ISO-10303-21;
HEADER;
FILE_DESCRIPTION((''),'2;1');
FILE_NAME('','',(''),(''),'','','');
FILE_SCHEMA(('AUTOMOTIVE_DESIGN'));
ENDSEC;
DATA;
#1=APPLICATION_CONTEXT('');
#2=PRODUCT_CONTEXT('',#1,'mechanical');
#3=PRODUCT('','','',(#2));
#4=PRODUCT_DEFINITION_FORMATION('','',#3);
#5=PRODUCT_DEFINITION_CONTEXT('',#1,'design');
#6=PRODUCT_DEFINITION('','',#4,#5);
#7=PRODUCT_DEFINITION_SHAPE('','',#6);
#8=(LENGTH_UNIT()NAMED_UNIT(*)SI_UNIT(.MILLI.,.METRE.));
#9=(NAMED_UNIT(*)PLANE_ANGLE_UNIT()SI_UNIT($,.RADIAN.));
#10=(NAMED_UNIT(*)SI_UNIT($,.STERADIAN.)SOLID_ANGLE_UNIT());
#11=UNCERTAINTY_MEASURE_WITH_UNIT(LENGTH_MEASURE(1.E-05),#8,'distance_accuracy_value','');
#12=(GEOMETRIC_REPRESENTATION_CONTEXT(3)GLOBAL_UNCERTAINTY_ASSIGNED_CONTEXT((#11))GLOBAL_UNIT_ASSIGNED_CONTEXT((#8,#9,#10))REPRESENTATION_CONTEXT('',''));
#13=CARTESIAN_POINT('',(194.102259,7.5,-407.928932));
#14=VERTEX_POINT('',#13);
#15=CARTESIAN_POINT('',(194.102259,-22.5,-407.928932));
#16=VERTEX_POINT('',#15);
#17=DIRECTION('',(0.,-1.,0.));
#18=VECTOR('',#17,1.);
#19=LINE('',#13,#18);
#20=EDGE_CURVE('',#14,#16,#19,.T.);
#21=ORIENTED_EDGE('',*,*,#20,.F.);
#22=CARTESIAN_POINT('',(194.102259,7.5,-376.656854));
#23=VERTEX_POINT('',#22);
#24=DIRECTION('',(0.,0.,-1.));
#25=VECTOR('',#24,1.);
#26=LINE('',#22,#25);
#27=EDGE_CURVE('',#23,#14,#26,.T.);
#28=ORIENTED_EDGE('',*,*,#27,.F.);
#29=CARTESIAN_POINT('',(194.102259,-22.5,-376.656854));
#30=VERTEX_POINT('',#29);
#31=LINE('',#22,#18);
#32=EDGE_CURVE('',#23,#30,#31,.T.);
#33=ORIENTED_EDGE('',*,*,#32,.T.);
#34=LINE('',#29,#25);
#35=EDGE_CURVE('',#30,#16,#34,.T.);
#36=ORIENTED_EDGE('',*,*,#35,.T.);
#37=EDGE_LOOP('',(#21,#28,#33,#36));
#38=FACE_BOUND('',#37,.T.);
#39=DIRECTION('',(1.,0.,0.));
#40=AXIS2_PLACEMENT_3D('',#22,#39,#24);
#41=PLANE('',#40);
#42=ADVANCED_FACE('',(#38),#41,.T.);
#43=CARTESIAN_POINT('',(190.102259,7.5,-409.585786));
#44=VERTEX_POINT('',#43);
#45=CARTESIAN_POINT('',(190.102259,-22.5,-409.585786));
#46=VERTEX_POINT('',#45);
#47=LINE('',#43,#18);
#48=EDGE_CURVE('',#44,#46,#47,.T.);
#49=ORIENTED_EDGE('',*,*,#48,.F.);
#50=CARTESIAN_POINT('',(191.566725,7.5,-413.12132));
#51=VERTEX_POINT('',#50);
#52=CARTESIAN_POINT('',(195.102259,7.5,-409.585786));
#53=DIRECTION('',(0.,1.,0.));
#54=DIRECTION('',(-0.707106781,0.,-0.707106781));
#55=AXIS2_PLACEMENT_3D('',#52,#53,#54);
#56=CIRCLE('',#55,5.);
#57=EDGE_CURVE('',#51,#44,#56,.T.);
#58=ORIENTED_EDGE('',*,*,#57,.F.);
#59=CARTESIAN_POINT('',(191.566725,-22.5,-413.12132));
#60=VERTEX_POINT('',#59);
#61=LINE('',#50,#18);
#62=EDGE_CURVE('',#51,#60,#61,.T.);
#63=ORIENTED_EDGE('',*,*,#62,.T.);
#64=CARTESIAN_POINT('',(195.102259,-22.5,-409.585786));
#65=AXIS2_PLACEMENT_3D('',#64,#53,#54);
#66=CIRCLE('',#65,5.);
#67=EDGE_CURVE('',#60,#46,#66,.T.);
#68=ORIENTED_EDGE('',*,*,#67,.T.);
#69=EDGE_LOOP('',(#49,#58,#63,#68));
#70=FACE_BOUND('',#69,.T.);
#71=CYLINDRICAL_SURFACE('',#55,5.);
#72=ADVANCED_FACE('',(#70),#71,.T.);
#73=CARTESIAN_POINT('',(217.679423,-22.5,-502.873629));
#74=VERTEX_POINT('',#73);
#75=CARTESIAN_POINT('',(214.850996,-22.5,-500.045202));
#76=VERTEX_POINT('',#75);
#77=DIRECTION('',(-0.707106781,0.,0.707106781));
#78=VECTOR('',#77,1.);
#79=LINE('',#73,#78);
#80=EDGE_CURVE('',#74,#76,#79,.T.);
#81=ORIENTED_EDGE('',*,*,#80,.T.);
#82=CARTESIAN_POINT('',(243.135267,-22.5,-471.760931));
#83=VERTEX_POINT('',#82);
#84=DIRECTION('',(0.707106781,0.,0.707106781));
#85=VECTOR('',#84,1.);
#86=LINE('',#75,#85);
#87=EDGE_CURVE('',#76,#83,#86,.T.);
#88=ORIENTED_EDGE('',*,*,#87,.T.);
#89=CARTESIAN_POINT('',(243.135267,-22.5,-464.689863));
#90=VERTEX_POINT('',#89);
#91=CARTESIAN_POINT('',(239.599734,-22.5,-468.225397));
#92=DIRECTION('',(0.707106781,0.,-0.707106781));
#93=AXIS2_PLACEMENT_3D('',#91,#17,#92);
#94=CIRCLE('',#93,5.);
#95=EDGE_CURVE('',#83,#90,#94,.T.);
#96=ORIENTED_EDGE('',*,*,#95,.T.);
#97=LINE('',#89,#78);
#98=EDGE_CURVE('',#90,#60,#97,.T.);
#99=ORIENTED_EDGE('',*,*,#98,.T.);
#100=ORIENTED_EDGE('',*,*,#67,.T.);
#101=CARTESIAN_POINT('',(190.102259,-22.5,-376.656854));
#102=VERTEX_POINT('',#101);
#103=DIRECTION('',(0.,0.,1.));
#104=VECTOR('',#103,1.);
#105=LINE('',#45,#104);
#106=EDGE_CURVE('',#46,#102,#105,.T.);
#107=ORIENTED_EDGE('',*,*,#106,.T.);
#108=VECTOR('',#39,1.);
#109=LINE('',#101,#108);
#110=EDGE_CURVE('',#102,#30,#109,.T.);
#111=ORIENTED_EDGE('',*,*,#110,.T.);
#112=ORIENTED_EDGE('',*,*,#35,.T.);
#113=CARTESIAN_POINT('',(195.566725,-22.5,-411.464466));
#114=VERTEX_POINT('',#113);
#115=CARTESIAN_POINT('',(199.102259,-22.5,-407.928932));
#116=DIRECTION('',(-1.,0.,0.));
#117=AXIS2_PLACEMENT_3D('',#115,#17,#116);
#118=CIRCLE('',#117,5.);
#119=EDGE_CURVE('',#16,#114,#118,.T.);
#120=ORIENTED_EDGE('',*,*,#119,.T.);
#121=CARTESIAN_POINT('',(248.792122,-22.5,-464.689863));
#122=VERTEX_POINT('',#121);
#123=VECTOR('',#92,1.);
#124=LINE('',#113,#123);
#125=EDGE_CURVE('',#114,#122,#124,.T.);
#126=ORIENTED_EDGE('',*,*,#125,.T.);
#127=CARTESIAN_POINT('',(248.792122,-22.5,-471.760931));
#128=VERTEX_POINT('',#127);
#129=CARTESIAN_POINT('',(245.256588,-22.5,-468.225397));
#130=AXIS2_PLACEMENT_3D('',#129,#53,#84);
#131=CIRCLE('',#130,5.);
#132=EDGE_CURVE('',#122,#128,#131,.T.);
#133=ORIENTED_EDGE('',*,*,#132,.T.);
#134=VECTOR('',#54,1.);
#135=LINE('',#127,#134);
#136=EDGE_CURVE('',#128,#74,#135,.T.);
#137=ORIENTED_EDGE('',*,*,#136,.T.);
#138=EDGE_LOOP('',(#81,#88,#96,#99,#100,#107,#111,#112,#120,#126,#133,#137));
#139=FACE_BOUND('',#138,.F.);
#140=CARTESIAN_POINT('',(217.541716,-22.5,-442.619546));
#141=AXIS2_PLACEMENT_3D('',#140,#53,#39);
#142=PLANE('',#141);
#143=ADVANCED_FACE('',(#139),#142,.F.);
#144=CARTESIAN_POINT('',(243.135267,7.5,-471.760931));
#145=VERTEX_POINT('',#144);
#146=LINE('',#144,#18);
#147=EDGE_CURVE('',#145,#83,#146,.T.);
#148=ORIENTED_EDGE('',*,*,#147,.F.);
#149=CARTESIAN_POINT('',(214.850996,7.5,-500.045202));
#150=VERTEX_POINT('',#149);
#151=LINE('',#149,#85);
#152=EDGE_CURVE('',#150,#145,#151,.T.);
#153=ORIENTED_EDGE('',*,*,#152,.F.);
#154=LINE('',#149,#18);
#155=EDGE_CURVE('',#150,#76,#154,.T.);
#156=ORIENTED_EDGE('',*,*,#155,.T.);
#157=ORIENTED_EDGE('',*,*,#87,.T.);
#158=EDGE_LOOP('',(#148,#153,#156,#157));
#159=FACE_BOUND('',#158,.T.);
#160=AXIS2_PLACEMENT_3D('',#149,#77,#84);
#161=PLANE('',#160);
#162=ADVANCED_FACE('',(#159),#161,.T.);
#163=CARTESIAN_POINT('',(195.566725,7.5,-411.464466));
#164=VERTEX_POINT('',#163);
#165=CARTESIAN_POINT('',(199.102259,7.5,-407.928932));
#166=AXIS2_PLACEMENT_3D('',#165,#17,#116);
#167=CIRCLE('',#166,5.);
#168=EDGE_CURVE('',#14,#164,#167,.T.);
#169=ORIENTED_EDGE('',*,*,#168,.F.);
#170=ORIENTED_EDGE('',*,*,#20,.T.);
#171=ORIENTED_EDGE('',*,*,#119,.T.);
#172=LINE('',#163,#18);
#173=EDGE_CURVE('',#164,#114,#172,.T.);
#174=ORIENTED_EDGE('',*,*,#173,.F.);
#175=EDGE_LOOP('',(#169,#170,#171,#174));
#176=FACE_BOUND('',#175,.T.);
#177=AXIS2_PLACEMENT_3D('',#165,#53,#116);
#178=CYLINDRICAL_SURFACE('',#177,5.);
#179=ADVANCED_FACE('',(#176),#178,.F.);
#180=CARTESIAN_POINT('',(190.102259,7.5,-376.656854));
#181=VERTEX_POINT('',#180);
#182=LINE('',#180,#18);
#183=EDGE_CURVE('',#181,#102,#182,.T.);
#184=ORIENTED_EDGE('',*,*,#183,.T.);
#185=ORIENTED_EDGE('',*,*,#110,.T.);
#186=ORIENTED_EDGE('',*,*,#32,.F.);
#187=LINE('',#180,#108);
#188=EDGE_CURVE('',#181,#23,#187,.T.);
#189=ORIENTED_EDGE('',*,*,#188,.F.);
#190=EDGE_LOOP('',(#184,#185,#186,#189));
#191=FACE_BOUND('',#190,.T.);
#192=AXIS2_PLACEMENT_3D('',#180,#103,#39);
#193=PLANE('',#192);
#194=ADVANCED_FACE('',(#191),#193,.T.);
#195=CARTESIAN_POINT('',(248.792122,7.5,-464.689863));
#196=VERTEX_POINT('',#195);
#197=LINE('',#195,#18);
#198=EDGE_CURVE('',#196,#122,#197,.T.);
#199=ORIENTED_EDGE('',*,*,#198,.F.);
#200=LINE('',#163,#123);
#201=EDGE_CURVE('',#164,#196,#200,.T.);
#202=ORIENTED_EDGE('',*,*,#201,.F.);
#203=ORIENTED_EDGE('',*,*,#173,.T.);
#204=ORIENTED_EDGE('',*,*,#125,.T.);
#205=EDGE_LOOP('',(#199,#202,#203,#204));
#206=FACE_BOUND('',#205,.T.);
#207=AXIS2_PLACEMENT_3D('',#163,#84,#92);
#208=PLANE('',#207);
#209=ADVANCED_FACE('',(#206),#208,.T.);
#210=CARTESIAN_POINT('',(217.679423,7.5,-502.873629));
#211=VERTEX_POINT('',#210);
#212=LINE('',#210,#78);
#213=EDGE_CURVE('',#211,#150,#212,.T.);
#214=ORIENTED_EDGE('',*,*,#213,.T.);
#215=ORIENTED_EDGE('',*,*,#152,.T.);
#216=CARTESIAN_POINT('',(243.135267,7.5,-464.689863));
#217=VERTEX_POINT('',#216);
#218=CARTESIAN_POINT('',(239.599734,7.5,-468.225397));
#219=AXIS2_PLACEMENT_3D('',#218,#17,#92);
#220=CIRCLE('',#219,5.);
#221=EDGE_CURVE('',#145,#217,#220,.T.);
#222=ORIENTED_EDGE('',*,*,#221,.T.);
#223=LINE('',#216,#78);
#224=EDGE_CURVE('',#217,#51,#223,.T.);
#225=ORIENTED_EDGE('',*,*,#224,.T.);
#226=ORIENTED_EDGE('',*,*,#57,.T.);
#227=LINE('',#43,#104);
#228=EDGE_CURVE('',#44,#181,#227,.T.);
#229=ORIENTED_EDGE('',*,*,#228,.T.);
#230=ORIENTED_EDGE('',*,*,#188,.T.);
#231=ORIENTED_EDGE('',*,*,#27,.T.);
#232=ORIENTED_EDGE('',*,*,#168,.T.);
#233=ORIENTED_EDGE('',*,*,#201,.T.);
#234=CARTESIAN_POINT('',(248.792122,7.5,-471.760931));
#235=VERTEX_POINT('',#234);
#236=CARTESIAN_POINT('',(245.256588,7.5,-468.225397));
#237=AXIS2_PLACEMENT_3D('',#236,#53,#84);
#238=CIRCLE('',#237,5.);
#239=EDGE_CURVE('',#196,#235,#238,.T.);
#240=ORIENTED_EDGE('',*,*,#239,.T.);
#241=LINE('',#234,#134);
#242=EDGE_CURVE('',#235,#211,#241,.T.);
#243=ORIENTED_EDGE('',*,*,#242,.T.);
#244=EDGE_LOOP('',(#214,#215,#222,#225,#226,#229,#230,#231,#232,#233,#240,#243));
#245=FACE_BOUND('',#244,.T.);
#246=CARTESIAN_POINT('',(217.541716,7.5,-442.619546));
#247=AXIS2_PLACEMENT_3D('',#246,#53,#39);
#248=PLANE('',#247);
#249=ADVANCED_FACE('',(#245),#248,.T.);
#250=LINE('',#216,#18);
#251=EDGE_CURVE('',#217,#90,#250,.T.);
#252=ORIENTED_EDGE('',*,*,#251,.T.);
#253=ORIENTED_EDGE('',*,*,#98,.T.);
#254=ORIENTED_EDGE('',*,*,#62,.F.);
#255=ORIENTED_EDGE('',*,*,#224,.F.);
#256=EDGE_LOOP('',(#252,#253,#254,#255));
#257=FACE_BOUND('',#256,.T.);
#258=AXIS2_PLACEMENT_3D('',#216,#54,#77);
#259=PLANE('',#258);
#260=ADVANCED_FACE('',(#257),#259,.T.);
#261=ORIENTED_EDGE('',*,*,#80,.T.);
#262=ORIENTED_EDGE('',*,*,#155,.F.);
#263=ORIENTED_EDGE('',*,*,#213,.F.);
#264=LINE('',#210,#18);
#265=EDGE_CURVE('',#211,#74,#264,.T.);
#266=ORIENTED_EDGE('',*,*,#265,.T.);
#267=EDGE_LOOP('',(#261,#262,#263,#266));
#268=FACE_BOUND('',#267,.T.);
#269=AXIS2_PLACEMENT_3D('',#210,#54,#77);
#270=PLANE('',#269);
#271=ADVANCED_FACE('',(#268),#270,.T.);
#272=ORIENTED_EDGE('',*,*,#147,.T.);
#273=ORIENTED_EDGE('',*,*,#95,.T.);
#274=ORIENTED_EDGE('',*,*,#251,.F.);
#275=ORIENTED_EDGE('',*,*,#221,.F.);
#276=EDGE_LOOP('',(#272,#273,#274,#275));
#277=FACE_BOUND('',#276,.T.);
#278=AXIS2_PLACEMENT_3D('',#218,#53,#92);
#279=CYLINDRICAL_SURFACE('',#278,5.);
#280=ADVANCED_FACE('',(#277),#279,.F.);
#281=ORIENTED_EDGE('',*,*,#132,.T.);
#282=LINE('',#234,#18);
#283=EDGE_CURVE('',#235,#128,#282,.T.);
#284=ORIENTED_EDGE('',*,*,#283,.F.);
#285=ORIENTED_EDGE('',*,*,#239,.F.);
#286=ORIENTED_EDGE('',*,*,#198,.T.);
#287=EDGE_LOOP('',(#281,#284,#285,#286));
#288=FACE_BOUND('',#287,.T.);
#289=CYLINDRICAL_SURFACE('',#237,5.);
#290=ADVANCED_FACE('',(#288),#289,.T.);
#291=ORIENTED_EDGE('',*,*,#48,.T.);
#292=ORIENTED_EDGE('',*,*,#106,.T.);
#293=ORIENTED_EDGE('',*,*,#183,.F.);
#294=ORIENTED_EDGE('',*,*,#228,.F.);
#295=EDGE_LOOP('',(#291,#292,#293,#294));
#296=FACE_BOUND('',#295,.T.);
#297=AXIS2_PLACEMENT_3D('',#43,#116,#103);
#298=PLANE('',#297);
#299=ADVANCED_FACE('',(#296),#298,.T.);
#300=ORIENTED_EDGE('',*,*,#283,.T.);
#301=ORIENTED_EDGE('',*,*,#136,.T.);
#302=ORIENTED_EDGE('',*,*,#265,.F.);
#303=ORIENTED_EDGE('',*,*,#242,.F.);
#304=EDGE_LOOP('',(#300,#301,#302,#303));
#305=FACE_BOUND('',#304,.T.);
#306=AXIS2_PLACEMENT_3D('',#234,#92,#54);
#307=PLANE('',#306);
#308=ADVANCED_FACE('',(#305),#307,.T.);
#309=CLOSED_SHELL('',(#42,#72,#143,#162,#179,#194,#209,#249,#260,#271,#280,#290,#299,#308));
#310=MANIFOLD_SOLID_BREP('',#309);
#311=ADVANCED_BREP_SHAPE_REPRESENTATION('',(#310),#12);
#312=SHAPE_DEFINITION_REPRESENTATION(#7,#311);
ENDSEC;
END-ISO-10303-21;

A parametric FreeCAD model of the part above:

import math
import FreeCAD as App
import Part
import Sketcher
from FreeCAD import Vector

doc = App.newDocument("Part")
body = doc.addObject("PartDesign::Body", "Body")

# Sketch on XZ plane
sketch1 = body.newObject("Sketcher::SketchObject", "Sketch")
sketch1.AttachmentSupport = (doc.getObject("XZ_Plane"), [""])
sketch1.MapMode = "FlatFace"
sketch1.AttachmentOffset = App.Placement(Vector(0, 0, -7.5), App.Rotation())
sketch1.addGeometry(Part.LineSegment(Vector(248.8, -471.8, 0), Vector(217.7, -502.9, 0)), False)
sketch1.addGeometry(Part.LineSegment(Vector(217.7, -502.9, 0), Vector(214.9, -500, 0)), False)
sketch1.addGeometry(Part.LineSegment(Vector(214.9, -500, 0), Vector(243.1, -471.8, 0)), False)
sketch1.addGeometry(Part.ArcOfCircle(Part.Circle(Vector(239.6, -468.2, 0), Vector(0, 0, 1), 5), math.radians(-45), math.radians(45)), False)
sketch1.addGeometry(Part.LineSegment(Vector(243.1, -464.7, 0), Vector(191.6, -413.1, 0)), False)
sketch1.addGeometry(Part.ArcOfCircle(Part.Circle(Vector(195.1, -409.6, 0), Vector(0, 0, 1), 5), math.radians(180), math.radians(225)), False)
sketch1.addGeometry(Part.LineSegment(Vector(190.1, -409.6, 0), Vector(190.1, -376.7, 0)), False)
sketch1.addGeometry(Part.LineSegment(Vector(190.1, -376.7, 0), Vector(194.1, -376.7, 0)), False)
sketch1.addGeometry(Part.LineSegment(Vector(194.1, -376.7, 0), Vector(194.1, -407.9, 0)), False)
sketch1.addGeometry(Part.ArcOfCircle(Part.Circle(Vector(199.1, -407.9, 0), Vector(0, 0, 1), 5), math.radians(180), math.radians(225)), False)
sketch1.addGeometry(Part.LineSegment(Vector(195.6, -411.5, 0), Vector(248.8, -464.7, 0)), False)
sketch1.addGeometry(Part.ArcOfCircle(Part.Circle(Vector(245.3, -468.2, 0), Vector(0, 0, 1), 5), math.radians(-45), math.radians(45)), False)
sketch1.addConstraint(Sketcher.Constraint("Coincident", 0, 2, 1, 1))
sketch1.addConstraint(Sketcher.Constraint("Coincident", 1, 2, 2, 1))
sketch1.addConstraint(Sketcher.Constraint("Tangent", 2, 2, 3, 1))
sketch1.addConstraint(Sketcher.Constraint("Tangent", 3, 2, 4, 1))
sketch1.addConstraint(Sketcher.Constraint("Tangent", 4, 2, 5, 2))
sketch1.addConstraint(Sketcher.Constraint("Tangent", 5, 1, 6, 1))
sketch1.addConstraint(Sketcher.Constraint("Coincident", 6, 2, 7, 1))
sketch1.addConstraint(Sketcher.Constraint("Coincident", 7, 2, 8, 1))
sketch1.addConstraint(Sketcher.Constraint("Tangent", 8, 2, 9, 1))
sketch1.addConstraint(Sketcher.Constraint("Tangent", 9, 2, 10, 1))
sketch1.addConstraint(Sketcher.Constraint("Tangent", 10, 2, 11, 2))
sketch1.addConstraint(Sketcher.Constraint("Tangent", 11, 1, 0, 1))
sketch1.addConstraint(Sketcher.Constraint("Vertical", 6))
sketch1.addConstraint(Sketcher.Constraint("Horizontal", 7))
sketch1.addConstraint(Sketcher.Constraint("Vertical", 8))
sketch1.addConstraint(Sketcher.Constraint("Equal", 3, 5))
sketch1.addConstraint(Sketcher.Constraint("Equal", 5, 9))
sketch1.addConstraint(Sketcher.Constraint("Equal", 9, 11))
sketch1.addConstraint(Sketcher.Constraint("Perpendicular", 0, 1))
sketch1.addConstraint(Sketcher.Constraint("Perpendicular", 1, 2))
sketch1.addConstraint(Sketcher.Constraint("Perpendicular", 2, 4))
sketch1.addConstraint(Sketcher.Constraint("Parallel", 4, 10))
sketch1.addConstraint(Sketcher.Constraint("Horizontal", 3, 3, 11, 3))
sketch1.addConstraint(Sketcher.Constraint("Vertical", 2, 2, 3, 2))
sketch1.addConstraint(Sketcher.Constraint("Radius", 3, 5.0))
sketch1.addConstraint(Sketcher.Constraint("DistanceX", 7, 1, 7, 2, 4.0))
sketch1.addConstraint(Sketcher.Constraint("Distance", 0, 44.0))
sketch1.addConstraint(Sketcher.Constraint("Distance", 1, 4.0))
sketch1.addConstraint(Sketcher.Constraint("DistanceY", 2, 2, 9, 3, 63.831998))
sketch1.addConstraint(Sketcher.Constraint("DistanceY", 1, 2, -1, 1, 500.045202))
sketch1.addConstraint(Sketcher.Constraint("DistanceY", 6, 1, 6, 2, 32.928932))
sketch1.addConstraint(Sketcher.Constraint("DistanceX", -1, 1, 5, 3, 195.102259))
pad1 = body.newObject("PartDesign::Pad", "Pad")
pad1.Profile = sketch1
pad1.Length = 30

doc.recompute()
